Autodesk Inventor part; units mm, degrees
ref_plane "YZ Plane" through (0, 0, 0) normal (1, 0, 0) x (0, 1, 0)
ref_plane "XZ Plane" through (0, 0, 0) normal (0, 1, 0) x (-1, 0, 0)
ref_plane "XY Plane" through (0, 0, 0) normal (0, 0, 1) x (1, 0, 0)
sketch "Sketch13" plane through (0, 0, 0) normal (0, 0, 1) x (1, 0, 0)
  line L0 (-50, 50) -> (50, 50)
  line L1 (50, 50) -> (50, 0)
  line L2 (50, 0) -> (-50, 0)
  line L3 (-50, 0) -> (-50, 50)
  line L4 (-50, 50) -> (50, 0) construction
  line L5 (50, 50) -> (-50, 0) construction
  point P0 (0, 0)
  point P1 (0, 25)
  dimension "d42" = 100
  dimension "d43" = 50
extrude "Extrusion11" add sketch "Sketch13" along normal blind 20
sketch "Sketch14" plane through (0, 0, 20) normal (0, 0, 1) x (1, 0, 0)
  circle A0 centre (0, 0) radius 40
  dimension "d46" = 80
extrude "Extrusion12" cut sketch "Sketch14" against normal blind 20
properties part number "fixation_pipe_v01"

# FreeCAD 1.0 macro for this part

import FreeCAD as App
import Part
import Sketcher
Q = App.Units.Quantity

doc = App.newDocument("Part")
body = doc.addObject("PartDesign::Body", "Body")

sketch1 = body.newObject("Sketcher::SketchObject", "Sketch")
sketch1.AttachmentSupport = (doc.getObject("XY_Plane"), [""])
sketch1.MapMode = "FlatFace"
sketch1.addGeometry(Part.LineSegment(App.Vector(50, 50, 0), App.Vector(-50, 50, 0)), False)
sketch1.addGeometry(Part.LineSegment(App.Vector(-50, 50, 0), App.Vector(-50, 0, 0)), False)
sketch1.addGeometry(Part.LineSegment(App.Vector(-50, 0, 0), App.Vector(50, 0, 0)), False)
sketch1.addGeometry(Part.LineSegment(App.Vector(50, 0, 0), App.Vector(50, 50, 0)), False)
sketch1.addConstraint(Sketcher.Constraint("Coincident", 0, 2, 1, 1))
sketch1.addConstraint(Sketcher.Constraint("Coincident", 1, 2, 2, 1))
sketch1.addConstraint(Sketcher.Constraint("Coincident", 2, 2, 3, 1))
sketch1.addConstraint(Sketcher.Constraint("Coincident", 3, 2, 0, 1))
sketch1.addConstraint(Sketcher.Constraint("Horizontal", 0))
sketch1.addConstraint(Sketcher.Constraint("Vertical", 1))
sketch1.addConstraint(Sketcher.Constraint("Horizontal", 2))
sketch1.addConstraint(Sketcher.Constraint("Vertical", 3))
sketch1.addConstraint(Sketcher.Constraint("Symmetric", 1, 2, 2, 2, -1, 1))
sketch1.addConstraint(Sketcher.Constraint("DistanceX", 0, 2, 0, 1, Q("3.937 in")))
sketch1.addConstraint(Sketcher.Constraint("DistanceY", 1, 2, 1, 1, Q("1.9685 in")))
pad1 = body.newObject("PartDesign::Pad", "Pad")
pad1.Profile = sketch1
pad1.Length = Q("0.7874016 in")

sketch2 = body.newObject("Sketcher::SketchObject", "Sketch001")
sketch2.AttachmentSupport = (doc.getObject("XY_Plane"), [""])
sketch2.MapMode = "FlatFace"
sketch2.AttachmentOffset = App.Placement(App.Vector(0, 0, 0.7874016 * 25.4), App.Rotation())
sketch2.addGeometry(Part.Circle(App.Vector(0, 0, 0), App.Vector(0, 0, 1), 40), False)
sketch2.addConstraint(Sketcher.Constraint("Coincident", 0, 3, -1, 1))
sketch2.addConstraint(Sketcher.Constraint("Diameter", 0, Q("3.1496 in")))
pocket1 = body.newObject("PartDesign::Pocket", "Pocket")
pocket1.Profile = sketch2
pocket1.Length = Q("0.7874016 in")

doc.recompute()
